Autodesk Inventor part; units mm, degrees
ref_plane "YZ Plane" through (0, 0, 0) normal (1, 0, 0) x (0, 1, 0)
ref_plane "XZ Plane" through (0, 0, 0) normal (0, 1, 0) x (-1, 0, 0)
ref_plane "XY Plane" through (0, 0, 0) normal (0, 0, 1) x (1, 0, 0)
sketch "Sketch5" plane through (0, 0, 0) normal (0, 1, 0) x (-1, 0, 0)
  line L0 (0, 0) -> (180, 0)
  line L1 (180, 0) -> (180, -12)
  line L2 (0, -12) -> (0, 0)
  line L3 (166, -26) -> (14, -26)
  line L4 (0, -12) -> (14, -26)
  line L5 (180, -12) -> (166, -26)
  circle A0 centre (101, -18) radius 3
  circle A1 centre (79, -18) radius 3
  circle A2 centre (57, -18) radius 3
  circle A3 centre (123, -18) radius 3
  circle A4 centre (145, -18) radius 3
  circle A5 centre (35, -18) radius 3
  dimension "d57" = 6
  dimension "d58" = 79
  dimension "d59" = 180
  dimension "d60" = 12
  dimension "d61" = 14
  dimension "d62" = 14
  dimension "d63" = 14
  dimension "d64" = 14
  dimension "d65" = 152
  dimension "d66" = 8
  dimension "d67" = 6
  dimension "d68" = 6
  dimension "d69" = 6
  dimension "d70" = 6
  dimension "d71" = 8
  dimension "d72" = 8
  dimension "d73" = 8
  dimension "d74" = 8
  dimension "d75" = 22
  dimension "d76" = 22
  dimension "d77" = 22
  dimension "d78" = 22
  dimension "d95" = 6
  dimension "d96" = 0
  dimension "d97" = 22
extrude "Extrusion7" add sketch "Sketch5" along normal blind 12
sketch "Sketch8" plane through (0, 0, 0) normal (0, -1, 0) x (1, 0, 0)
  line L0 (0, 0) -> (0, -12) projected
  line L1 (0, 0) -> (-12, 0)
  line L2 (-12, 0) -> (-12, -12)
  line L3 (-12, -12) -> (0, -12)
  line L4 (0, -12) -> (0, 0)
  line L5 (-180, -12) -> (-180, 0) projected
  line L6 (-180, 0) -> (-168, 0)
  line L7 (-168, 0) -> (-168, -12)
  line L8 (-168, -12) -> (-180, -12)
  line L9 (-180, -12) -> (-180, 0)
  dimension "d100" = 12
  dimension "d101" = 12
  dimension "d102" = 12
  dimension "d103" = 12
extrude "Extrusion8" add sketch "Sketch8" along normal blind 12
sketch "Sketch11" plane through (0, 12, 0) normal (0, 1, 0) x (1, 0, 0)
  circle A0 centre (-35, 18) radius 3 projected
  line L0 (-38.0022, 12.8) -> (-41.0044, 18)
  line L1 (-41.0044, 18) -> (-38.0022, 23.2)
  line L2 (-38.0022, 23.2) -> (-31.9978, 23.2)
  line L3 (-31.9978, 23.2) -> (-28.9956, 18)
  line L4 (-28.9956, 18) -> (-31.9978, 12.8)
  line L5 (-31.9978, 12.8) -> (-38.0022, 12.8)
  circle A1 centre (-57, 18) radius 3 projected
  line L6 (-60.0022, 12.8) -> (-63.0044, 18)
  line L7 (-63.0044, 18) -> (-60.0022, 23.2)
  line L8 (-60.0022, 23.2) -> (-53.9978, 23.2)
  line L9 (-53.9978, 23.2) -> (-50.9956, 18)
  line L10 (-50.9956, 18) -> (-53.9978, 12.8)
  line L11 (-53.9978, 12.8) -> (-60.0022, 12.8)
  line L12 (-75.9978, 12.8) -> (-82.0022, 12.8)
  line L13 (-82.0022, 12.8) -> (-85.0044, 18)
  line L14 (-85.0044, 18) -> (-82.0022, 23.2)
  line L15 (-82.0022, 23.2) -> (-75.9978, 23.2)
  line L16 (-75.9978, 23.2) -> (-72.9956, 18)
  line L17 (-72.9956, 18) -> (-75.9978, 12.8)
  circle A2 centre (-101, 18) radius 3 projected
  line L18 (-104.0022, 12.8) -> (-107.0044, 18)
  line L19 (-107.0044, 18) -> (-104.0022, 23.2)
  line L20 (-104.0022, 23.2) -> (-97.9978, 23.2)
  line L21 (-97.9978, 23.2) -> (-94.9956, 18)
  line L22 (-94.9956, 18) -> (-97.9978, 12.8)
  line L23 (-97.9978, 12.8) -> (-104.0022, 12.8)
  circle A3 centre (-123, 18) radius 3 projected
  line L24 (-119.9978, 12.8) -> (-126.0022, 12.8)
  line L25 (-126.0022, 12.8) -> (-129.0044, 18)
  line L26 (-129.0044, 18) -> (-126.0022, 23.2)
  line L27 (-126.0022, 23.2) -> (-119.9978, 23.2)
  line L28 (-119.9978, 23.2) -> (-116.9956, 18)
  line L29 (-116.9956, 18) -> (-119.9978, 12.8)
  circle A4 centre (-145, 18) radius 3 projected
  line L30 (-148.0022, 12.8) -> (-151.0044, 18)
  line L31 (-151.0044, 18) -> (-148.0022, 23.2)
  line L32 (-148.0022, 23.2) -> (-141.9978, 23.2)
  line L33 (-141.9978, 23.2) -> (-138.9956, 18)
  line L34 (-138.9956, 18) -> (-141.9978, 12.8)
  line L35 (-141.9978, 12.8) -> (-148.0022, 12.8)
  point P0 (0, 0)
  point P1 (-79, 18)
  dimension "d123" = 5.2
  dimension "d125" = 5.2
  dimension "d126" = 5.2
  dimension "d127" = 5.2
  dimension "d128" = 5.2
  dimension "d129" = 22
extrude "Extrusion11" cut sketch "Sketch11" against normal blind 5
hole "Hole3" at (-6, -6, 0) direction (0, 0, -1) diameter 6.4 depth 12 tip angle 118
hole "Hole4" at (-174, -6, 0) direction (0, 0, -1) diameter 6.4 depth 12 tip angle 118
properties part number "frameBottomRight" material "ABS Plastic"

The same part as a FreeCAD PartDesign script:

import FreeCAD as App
import Part
import Sketcher

V = App.Vector
Q = App.Units.Quantity

doc = App.newDocument("Part")
body = doc.addObject("PartDesign::Body", "Body")

sketch1 = body.newObject("Sketcher::SketchObject", "Sketch")
sketch1.AttachmentSupport = (doc.getObject("XZ_Plane"), [""])
sketch1.MapMode = "FlatFace"
sketch1.addGeometry([
    Part.LineSegment(V(-180, 0, 0), V(0, 0, 0)),
    Part.LineSegment(V(0, 0, 0), V(0, -12, 0)),
    Part.LineSegment(V(0, -12, 0), V(-14, -26, 0)),
    Part.LineSegment(V(-14, -26, 0), V(-166, -26, 0)),
    Part.LineSegment(V(-166, -26, 0), V(-180, -12, 0)),
    Part.LineSegment(V(-180, -12, 0), V(-180, 0, 0)),
    Part.Circle(V(-35, -18, 0), V(0, 0, 1), 3),
    Part.Circle(V(-57, -18, 0), V(0, 0, 1), 3),
    Part.Circle(V(-79, -18, 0), V(0, 0, 1), 3),
    Part.Circle(V(-101, -18, 0), V(0, 0, 1), 3),
    Part.Circle(V(-123, -18, 0), V(0, 0, 1), 3),
    Part.Circle(V(-145, -18, 0), V(0, 0, 1), 3),
], False)
sketch1.addConstraint([
    Sketcher.Constraint("Coincident", 0, 2, 1, 1),
    Sketcher.Constraint("Coincident", 1, 2, 2, 1),
    Sketcher.Constraint("Coincident", 2, 2, 3, 1),
    Sketcher.Constraint("Coincident", 3, 2, 4, 1),
    Sketcher.Constraint("Coincident", 4, 2, 5, 1),
    Sketcher.Constraint("Coincident", 5, 2, 0, 1),
    Sketcher.Constraint("Horizontal", 0),
    Sketcher.Constraint("Vertical", 1),
    Sketcher.Constraint("Horizontal", 3),
    Sketcher.Constraint("Vertical", 5),
    Sketcher.Constraint("Coincident", 0, 2, -1, 1),
    Sketcher.Constraint("Equal", 6, 7),
    Sketcher.Constraint("Equal", 7, 8),
    Sketcher.Constraint("Equal", 8, 9),
    Sketcher.Constraint("Equal", 9, 10),
    Sketcher.Constraint("Equal", 10, 11),
    Sketcher.Constraint("Perpendicular", 2, 4),
    Sketcher.Constraint("Horizontal", 6, 3, 7, 3),
    Sketcher.Constraint("Horizontal", 7, 3, 8, 3),
    Sketcher.Constraint("Horizontal", 8, 3, 9, 3),
    Sketcher.Constraint("Horizontal", 9, 3, 10, 3),
    Sketcher.Constraint("Horizontal", 10, 3, 11, 3),
    Sketcher.Constraint("Horizontal", 1, 2, 4, 2),
    Sketcher.Constraint("Equal", 2, 4),
    Sketcher.Constraint("Diameter", 6, 6.0),
    Sketcher.Constraint("DistanceX", 0, 1, 0, 2, 180.0),
    Sketcher.Constraint("DistanceX", 3, 2, 3, 1, 152.0),
    Sketcher.Constraint("DistanceY", 1, 2, 1, 1, 12.0),
    Sketcher.Constraint("DistanceX", 8, 3, -1, 1, 79.0),
    Sketcher.Constraint("DistanceX", 7, 3, 6, 3, 22.0),
    Sketcher.Constraint("DistanceX", 8, 3, 7, 3, 22.0),
    Sketcher.Constraint("DistanceX", 9, 3, 8, 3, 22.0),
    Sketcher.Constraint("DistanceX", 10, 3, 9, 3, 22.0),
    Sketcher.Constraint("DistanceX", 11, 3, 10, 3, 22.0),
    Sketcher.Constraint("DistanceY", 6, 3, 1, 2, 6.0),
])
pad1 = body.newObject("PartDesign::Pad", "Pad")
pad1.Profile = sketch1
pad1.Length = 12
pad1.Reversed = True

sketch2 = body.newObject("Sketcher::SketchObject", "Sketch001")
sketch2.AttachmentSupport = (doc.getObject("XZ_Plane"), [""])
sketch2.MapMode = "FlatFace"
sketch2.addGeometry([
    Part.LineSegment(V(0, -12, 0), V(0, 0, 0)),
    Part.LineSegment(V(0, 0, 0), V(-12, 0, 0)),
    Part.LineSegment(V(-12, 0, 0), V(-12, -12, 0)),
    Part.LineSegment(V(-12, -12, 0), V(0, -12, 0)),
    Part.LineSegment(V(-180, 0, 0), V(-180, -12, 0)),
    Part.LineSegment(V(-180, -12, 0), V(-168, -12, 0)),
    Part.LineSegment(V(-168, -12, 0), V(-168, 0, 0)),
    Part.LineSegment(V(-168, 0, 0), V(-180, 0, 0)),
], False)
sketch2.addConstraint([
    Sketcher.Constraint("Coincident", 0, 2, 1, 1),
    Sketcher.Constraint("Coincident", 1, 2, 2, 1),
    Sketcher.Constraint("Coincident", 2, 2, 3, 1),
    Sketcher.Constraint("Coincident", 3, 2, 0, 1),
    Sketcher.Constraint("Coincident", 4, 2, 5, 1),
    Sketcher.Constraint("Coincident", 5, 2, 6, 1),
    Sketcher.Constraint("Coincident", 6, 2, 7, 1),
    Sketcher.Constraint("Coincident", 7, 2, 4, 1),
    Sketcher.Constraint("Vertical", 0),
    Sketcher.Constraint("Horizontal", 1),
    Sketcher.Constraint("Vertical", 2),
    Sketcher.Constraint("Horizontal", 3),
    Sketcher.Constraint("Vertical", 4),
    Sketcher.Constraint("Horizontal", 5),
    Sketcher.Constraint("Vertical", 6),
    Sketcher.Constraint("Horizontal", 7),
    Sketcher.Constraint("Coincident", 0, 2, -1, 1),
    Sketcher.Constraint("PointOnObject", 6, 2, -1),
    Sketcher.Constraint("Horizontal", 3, 2, 4, 2),
    Sketcher.Constraint("Equal", 3, 5),
    Sketcher.Constraint("Equal", 7, 0),
    Sketcher.Constraint("DistanceX", 1, 2, 1, 1, 12.0),
    Sketcher.Constraint("DistanceX", 4, 2, -1, 1, 180.0),
])
pad2 = body.newObject("PartDesign::Pad", "Pad001")
pad2.Profile = sketch2
pad2.Length = 12

sketch3 = body.newObject("Sketcher::SketchObject", "Sketch002")
sketch3.AttachmentSupport = (doc.getObject("XZ_Plane"), [""])
sketch3.MapMode = "FlatFace"
sketch3.AttachmentOffset = App.Placement(V(0, 0, -12), App.Rotation())
sketch3.addGeometry([
    Part.LineSegment(V(-41.0044, -18, 0), V(-38.0022, -12.8, 0)),
    Part.LineSegment(V(-38.0022, -12.8, 0), V(-31.9978, -12.8, 0)),
    Part.LineSegment(V(-31.9978, -12.8, 0), V(-28.9956, -18, 0)),
    Part.LineSegment(V(-28.9956, -18, 0), V(-31.9978, -23.2, 0)),
    Part.LineSegment(V(-31.9978, -23.2, 0), V(-38.0022, -23.2, 0)),
    Part.LineSegment(V(-38.0022, -23.2, 0), V(-41.0044, -18, 0)),
    Part.Circle(V(-35, -18, 0), V(0, 0, 1), 3),
    Part.LineSegment(V(-63.0044, -18, 0), V(-60.0022, -12.8, 0)),
    Part.LineSegment(V(-60.0022, -12.8, 0), V(-53.9978, -12.8, 0)),
    Part.LineSegment(V(-53.9978, -12.8, 0), V(-50.9956, -18, 0)),
    Part.LineSegment(V(-50.9956, -18, 0), V(-53.9978, -23.2, 0)),
    Part.LineSegment(V(-53.9978, -23.2, 0), V(-60.0022, -23.2, 0)),
    Part.LineSegment(V(-60.0022, -23.2, 0), V(-63.0044, -18, 0)),
    Part.Circle(V(-57, -18, 0), V(0, 0, 1), 3),
    Part.LineSegment(V(-82.0022, -12.8, 0), V(-75.9978, -12.8, 0)),
    Part.LineSegment(V(-75.9978, -12.8, 0), V(-72.9956, -18, 0)),
    Part.LineSegment(V(-72.9956, -18, 0), V(-75.9978, -23.2, 0)),
    Part.LineSegment(V(-75.9978, -23.2, 0), V(-82.0022, -23.2, 0)),
    Part.LineSegment(V(-82.0022, -23.2, 0), V(-85.0044, -18, 0)),
    Part.LineSegment(V(-85.0044, -18, 0), V(-82.0022, -12.8, 0)),
    Part.LineSegment(V(-107.0044, -18, 0), V(-104.0022, -12.8, 0)),
    Part.LineSegment(V(-104.0022, -12.8, 0), V(-97.9978, -12.8, 0)),
    Part.LineSegment(V(-97.9978, -12.8, 0), V(-94.9956, -18, 0)),
    Part.LineSegment(V(-94.9956, -18, 0), V(-97.9978, -23.2, 0)),
    Part.LineSegment(V(-97.9978, -23.2, 0), V(-104.0022, -23.2, 0)),
    Part.LineSegment(V(-104.0022, -23.2, 0), V(-107.0044, -18, 0)),
    Part.Circle(V(-101, -18, 0), V(0, 0, 1), 3),
    Part.LineSegment(V(-126.0022, -12.8, 0), V(-119.9978, -12.8, 0)),
    Part.LineSegment(V(-119.9978, -12.8, 0), V(-116.9956, -18, 0)),
    Part.LineSegment(V(-116.9956, -18, 0), V(-119.9978, -23.2, 0)),
    Part.LineSegment(V(-119.9978, -23.2, 0), V(-126.0022, -23.2, 0)),
    Part.LineSegment(V(-126.0022, -23.2, 0), V(-129.0044, -18, 0)),
    Part.LineSegment(V(-129.0044, -18, 0), V(-126.0022, -12.8, 0)),
    Part.Circle(V(-123, -18, 0), V(0, 0, 1), 3),
    Part.LineSegment(V(-151.0044, -18, 0), V(-148.0022, -12.8, 0)),
    Part.LineSegment(V(-148.0022, -12.8, 0), V(-141.9978, -12.8, 0)),
    Part.LineSegment(V(-141.9978, -12.8, 0), V(-138.9956, -18, 0)),
    Part.LineSegment(V(-138.9956, -18, 0), V(-141.9978, -23.2, 0)),
    Part.LineSegment(V(-141.9978, -23.2, 0), V(-148.0022, -23.2, 0)),
    Part.LineSegment(V(-148.0022, -23.2, 0), V(-151.0044, -18, 0)),
    Part.Circle(V(-145, -18, 0), V(0, 0, 1), 3),
], False)
sketch3.addConstraint([
    Sketcher.Constraint("Coincident", 0, 2, 1, 1),
    Sketcher.Constraint("Coincident", 1, 2, 2, 1),
    Sketcher.Constraint("Coincident", 2, 2, 3, 1),
    Sketcher.Constraint("Coincident", 3, 2, 4, 1),
    Sketcher.Constraint("Coincident", 4, 2, 5, 1),
    Sketcher.Constraint("Coincident", 5, 2, 0, 1),
    Sketcher.Constraint("Coincident", 7, 2, 8, 1),
    Sketcher.Constraint("Coincident", 8, 2, 9, 1),
    Sketcher.Constraint("Coincident", 9, 2, 10, 1),
    Sketcher.Constraint("Coincident", 10, 2, 11, 1),
    Sketcher.Constraint("Coincident", 11, 2, 12, 1),
    Sketcher.Constraint("Coincident", 12, 2, 7, 1),
    Sketcher.Constraint("Coincident", 14, 2, 15, 1),
    Sketcher.Constraint("Coincident", 15, 2, 16, 1),
    Sketcher.Constraint("Coincident", 16, 2, 17, 1),
    Sketcher.Constraint("Coincident", 17, 2, 18, 1),
    Sketcher.Constraint("Coincident", 18, 2, 19, 1),
    Sketcher.Constraint("Coincident", 19, 2, 14, 1),
    Sketcher.Constraint("Coincident", 20, 2, 21, 1),
    Sketcher.Constraint("Coincident", 21, 2, 22, 1),
    Sketcher.Constraint("Coincident", 22, 2, 23, 1),
    Sketcher.Constraint("Coincident", 23, 2, 24, 1),
    Sketcher.Constraint("Coincident", 24, 2, 25, 1),
    Sketcher.Constraint("Coincident", 25, 2, 20, 1),
    Sketcher.Constraint("Coincident", 27, 2, 28, 1),
    Sketcher.Constraint("Coincident", 28, 2, 29, 1),
    Sketcher.Constraint("Coincident", 29, 2, 30, 1),
    Sketcher.Constraint("Coincident", 30, 2, 31, 1),
    Sketcher.Constraint("Coincident", 31, 2, 32, 1),
    Sketcher.Constraint("Coincident", 32, 2, 27, 1),
    Sketcher.Constraint("Coincident", 34, 2, 35, 1),
    Sketcher.Constraint("Coincident", 35, 2, 36, 1),
    Sketcher.Constraint("Coincident", 36, 2, 37, 1),
    Sketcher.Constraint("Coincident", 37, 2, 38, 1),
    Sketcher.Constraint("Coincident", 38, 2, 39, 1),
    Sketcher.Constraint("Coincident", 39, 2, 34, 1),
    Sketcher.Constraint("Horizontal", 1),
    Sketcher.Constraint("Horizontal", 4),
    Sketcher.Constraint("Horizontal", 8),
    Sketcher.Constraint("Horizontal", 11),
    Sketcher.Constraint("Horizontal", 14),
    Sketcher.Constraint("Horizontal", 17),
    Sketcher.Constraint("Horizontal", 21),
    Sketcher.Constraint("Horizontal", 24),
    Sketcher.Constraint("Horizontal", 27),
    Sketcher.Constraint("Horizontal", 30),
    Sketcher.Constraint("Horizontal", 35),
    Sketcher.Constraint("Horizontal", 38),
    Sketcher.Constraint("Equal", 6, 13),
    Sketcher.Constraint("Equal", 13, 26),
    Sketcher.Constraint("Equal", 26, 33),
    Sketcher.Constraint("Equal", 33, 40),
    Sketcher.Constraint("Parallel", 0, 3),
    Sketcher.Constraint("Parallel", 2, 5),
    Sketcher.Constraint("Parallel", 3, 7),
    Sketcher.Constraint("Parallel", 5, 9),
    Sketcher.Constraint("Parallel", 7, 10),
    Sketcher.Constraint("Parallel", 9, 12),
    Sketcher.Constraint("Parallel", 12, 15),
    Sketcher.Constraint("Parallel", 10, 16),
    Sketcher.Constraint("Parallel", 15, 18),
    Sketcher.Constraint("Parallel", 16, 19),
    Sketcher.Constraint("Parallel", 19, 20),
    Sketcher.Constraint("Parallel", 18, 22),
    Sketcher.Constraint("Parallel", 20, 23),
    Sketcher.Constraint("Parallel", 22, 25),
    Sketcher.Constraint("Parallel", 25, 28),
    Sketcher.Constraint("Parallel", 23, 29),
    Sketcher.Constraint("Parallel", 28, 31),
    Sketcher.Constraint("Parallel", 29, 32),
    Sketcher.Constraint("Parallel", 32, 34),
    Sketcher.Constraint("Parallel", 31, 36),
    Sketcher.Constraint("Parallel", 34, 37),
    Sketcher.Constraint("Parallel", 36, 39),
    Sketcher.Constraint("Horizontal", 6, 3, 13, 3),
    Sketcher.Constraint("Horizontal", 13, 3, 26, 3),
    Sketcher.Constraint("Horizontal", 26, 3, 33, 3),
    Sketcher.Constraint("Horizontal", 33, 3, 40, 3),
    Sketcher.Constraint("Horizontal", 40, 3, 2, 2),
    Sketcher.Constraint("Horizontal", 2, 2, 5, 2),
    Sketcher.Constraint("Horizontal", 1, 2, 7, 2),
    Sketcher.Constraint("Horizontal", 5, 2, 9, 2),
    Sketcher.Constraint("Horizontal", 4, 2, 10, 2),
    Sketcher.Constraint("Horizontal", 9, 2, 12, 2),
    Sketcher.Constraint("Horizontal", 8, 2, 14, 2),
    Sketcher.Constraint("Horizontal", 12, 2, 15, 2),
    Sketcher.Constraint("Horizontal", 11, 2, 16, 2),
    Sketcher.Constraint("Horizontal", 15, 2, 18, 2),
    Sketcher.Constraint("Horizontal", 19, 2, 20, 2),
    Sketcher.Constraint("Horizontal", 18, 2, 22, 2),
    Sketcher.Constraint("Horizontal", 17, 2, 23, 2),
    Sketcher.Constraint("Horizontal", 22, 2, 25, 2),
    Sketcher.Constraint("Horizontal", 21, 2, 27, 2),
    Sketcher.Constraint("Horizontal", 25, 2, 28, 2),
    Sketcher.Constraint("Horizontal", 24, 2, 29, 2),
    Sketcher.Constraint("Horizontal", 28, 2, 31, 2),
    Sketcher.Constraint("Horizontal", 32, 2, 34, 2),
    Sketcher.Constraint("Horizontal", 31, 2, 36, 2),
    Sketcher.Constraint("Horizontal", 30, 2, 37, 2),
    Sketcher.Constraint("Horizontal", 36, 2, 39, 2),
    Sketcher.Constraint("Vertical", 1, 2, 3, 2),
    Sketcher.Constraint("Vertical", 0, 2, 4, 2),
    Sketcher.Constraint("Equal", 4, 8),
    Sketcher.Constraint("Equal", 11, 14),
    Sketcher.Constraint("Equal", 17, 21),
    Sketcher.Constraint("Equal", 24, 27),
    Sketcher.Constraint("Equal", 30, 35),
    Sketcher.Constraint("Diameter", 6, 6.0),
    Sketcher.Constraint("DistanceX", 13, 3, 6, 3, 22.0),
    Sketcher.Constraint("DistanceX", 33, 3, 26, 3, 22.0),
    Sketcher.Constraint("DistanceX", 40, 3, 33, 3, 22.0),
    Sketcher.Constraint("DistanceX", 7, 2, 0, 2, 22.0),
    Sketcher.Constraint("DistanceX", 14, 2, 8, 2, 22.0),
    Sketcher.Constraint("DistanceX", 20, 2, 19, 2, 22.0),
    Sketcher.Constraint("DistanceX", 34, 2, 32, 2, 22.0),
    Sketcher.Constraint("DistanceY", 6, 3, 0, 2, 5.2),
    Sketcher.Constraint("Angle", 0, Q("60.0002 deg")),
    Sketcher.Constraint("DistanceX", 6, 3, -1, 1, 35.0),
    Sketcher.Constraint("DistanceY", 6, 3, -1, 1, 18.0),
    Sketcher.Constraint("DistanceX", 26, 3, -1, 1, 101.0),
    Sketcher.Constraint("DistanceX", 1, 1, 1, 2, 6.0044),
    Sketcher.Constraint("DistanceX", 0, 2, -1, 1, 38.0022),
    Sketcher.Constraint("DistanceX", 27, 2, -1, 1, 119.9978),
])
pocket1 = body.newObject("PartDesign::Pocket", "Pocket")
pocket1.Profile = sketch3
pocket1.Length = 5
pocket1.Reversed = True

sketch4 = body.newObject("Sketcher::SketchObject", "Sketch003")
sketch4.AttachmentSupport = (doc.getObject("XY_Plane"), [""])
sketch4.MapMode = "FlatFace"
sketch4.addGeometry(Part.Circle(V(-6, -6, 0), V(0, 0, 1), 3.2), False)
sketch4.addConstraint([
    Sketcher.Constraint("Diameter", 0, 6.4),
    Sketcher.Constraint("DistanceX", 0, 3, -1, 1, 6.0),
    Sketcher.Constraint("DistanceY", 0, 3, -1, 1, 6.0),
])
doc.recompute()
hole = body.newObject("PartDesign::Hole", "Hole")
hole.Profile = sketch4
hole.ThreadType = "None"
hole.Diameter = 6.4
hole.DepthType = "Dimension"
hole.Depth = 12
hole.DrillPoint = "Angled"
hole.DrillPointAngle = 118

sketch5 = body.newObject("Sketcher::SketchObject", "Sketch004")
sketch5.AttachmentSupport = (doc.getObject("XY_Plane"), [""])
sketch5.MapMode = "FlatFace"
sketch5.addGeometry(Part.Circle(V(-174, -6, 0), V(0, 0, 1), 3.2), False)
sketch5.addConstraint([
    Sketcher.Constraint("Diameter", 0, 6.4),
    Sketcher.Constraint("DistanceX", 0, 3, -1, 1, 174.0),
    Sketcher.Constraint("DistanceY", 0, 3, -1, 1, 6.0),
])
doc.recompute()
hole2 = body.newObject("PartDesign::Hole", "Hole001")
hole2.Profile = sketch5
hole2.ThreadType = "None"
hole2.Diameter = 6.4
hole2.DepthType = "Dimension"
hole2.Depth = 12
hole2.DrillPoint = "Angled"
hole2.DrillPointAngle = 118

doc.recompute()
